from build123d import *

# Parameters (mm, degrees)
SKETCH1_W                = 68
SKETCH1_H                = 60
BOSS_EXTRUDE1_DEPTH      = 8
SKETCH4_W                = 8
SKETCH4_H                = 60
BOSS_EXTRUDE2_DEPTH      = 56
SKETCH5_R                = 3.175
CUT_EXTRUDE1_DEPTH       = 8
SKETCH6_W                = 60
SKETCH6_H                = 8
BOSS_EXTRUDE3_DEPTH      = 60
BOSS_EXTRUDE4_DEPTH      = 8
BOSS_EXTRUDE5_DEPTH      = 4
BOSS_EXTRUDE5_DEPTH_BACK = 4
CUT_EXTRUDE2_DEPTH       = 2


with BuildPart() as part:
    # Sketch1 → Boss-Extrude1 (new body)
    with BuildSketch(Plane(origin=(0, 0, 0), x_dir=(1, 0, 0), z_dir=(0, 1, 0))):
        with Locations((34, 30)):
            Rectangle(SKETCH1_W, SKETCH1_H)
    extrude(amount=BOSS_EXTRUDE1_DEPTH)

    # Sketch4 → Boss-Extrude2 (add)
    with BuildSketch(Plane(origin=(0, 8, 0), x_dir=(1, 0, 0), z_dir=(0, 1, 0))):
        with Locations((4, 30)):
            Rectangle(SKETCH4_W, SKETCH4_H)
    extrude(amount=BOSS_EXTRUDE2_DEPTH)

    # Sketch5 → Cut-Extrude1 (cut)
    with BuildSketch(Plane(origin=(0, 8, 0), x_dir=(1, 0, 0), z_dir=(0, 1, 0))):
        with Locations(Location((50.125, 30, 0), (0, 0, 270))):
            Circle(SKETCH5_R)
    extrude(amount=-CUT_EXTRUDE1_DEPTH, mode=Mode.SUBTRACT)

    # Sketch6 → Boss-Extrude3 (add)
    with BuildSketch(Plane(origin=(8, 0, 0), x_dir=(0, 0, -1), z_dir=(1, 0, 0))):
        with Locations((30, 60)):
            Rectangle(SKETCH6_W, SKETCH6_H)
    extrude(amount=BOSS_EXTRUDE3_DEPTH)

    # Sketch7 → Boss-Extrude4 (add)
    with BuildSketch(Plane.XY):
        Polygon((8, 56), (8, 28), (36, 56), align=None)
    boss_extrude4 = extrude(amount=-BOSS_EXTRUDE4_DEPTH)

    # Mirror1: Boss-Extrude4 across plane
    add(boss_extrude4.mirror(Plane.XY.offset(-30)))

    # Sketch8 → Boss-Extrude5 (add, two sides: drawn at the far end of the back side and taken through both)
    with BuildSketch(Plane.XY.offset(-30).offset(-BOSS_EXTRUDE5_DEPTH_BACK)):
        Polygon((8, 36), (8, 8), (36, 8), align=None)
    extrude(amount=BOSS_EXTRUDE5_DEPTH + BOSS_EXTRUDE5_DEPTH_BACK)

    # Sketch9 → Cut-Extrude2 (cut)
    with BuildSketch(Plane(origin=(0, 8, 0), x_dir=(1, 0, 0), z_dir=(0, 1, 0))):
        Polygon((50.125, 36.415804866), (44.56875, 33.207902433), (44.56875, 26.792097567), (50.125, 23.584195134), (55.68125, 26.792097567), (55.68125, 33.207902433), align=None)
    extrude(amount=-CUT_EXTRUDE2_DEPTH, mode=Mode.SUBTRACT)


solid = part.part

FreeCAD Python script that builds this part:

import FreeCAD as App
import Part
import Sketcher
from FreeCAD import Vector
Q = App.Units.Quantity

doc = App.newDocument("Part")
params = doc.addObject("Spreadsheet::Sheet", "Params")
for row, (alias, value) in enumerate([
    ("sketch1_width", "68 mm"),
    ("sketch1_height", "60 mm"),
    ("pad1_length", "8 mm"),
    ("sketch2_width", "8 mm"),
    ("sketch2_height", "60 mm"),
    ("pad2_length", "56 mm"),
    ("sketch3_diameter", "6.35 mm"),
    ("pocket1_length", "8 mm"),
    ("sketch4_width", "8 mm"),
    ("sketch4_height", "60 mm"),
    ("pad3_length", "60 mm"),
    ("sketch5_width", "28 mm"),
    ("pad4_length", "8 mm"),
    ("sketch6_width", "28 mm"),
    ("pad5_length", "4 mm"),
    ("pad5_length2", "4 mm"),
    ("pocket2_length", "2 mm"),
], start=1):
    params.set(f"A{row}", alias)
    params.set(f"B{row}", "=" + value)
    params.setAlias(f"B{row}", alias)

body = doc.addObject("PartDesign::Body", "Body")

# Sketch on XZ plane
sketch1 = body.newObject("Sketcher::SketchObject", "Sketch")
sketch1.AttachmentSupport = (doc.getObject("XZ_Plane"), [""])
sketch1.MapMode = "FlatFace"
sketch1.addGeometry([
    Part.LineSegment(Vector(0, -60, 0), Vector(0, 0, 0)),
    Part.LineSegment(Vector(0, 0, 0), Vector(68, 0, 0)),
    Part.LineSegment(Vector(68, 0, 0), Vector(68, -60, 0)),
    Part.LineSegment(Vector(68, -60, 0), Vector(0, -60, 0)),
], False)
sketch1.addConstraint([
    Sketcher.Constraint("Coincident", 0, 2, 1, 1),
    Sketcher.Constraint("Coincident", 1, 2, 2, 1),
    Sketcher.Constraint("Coincident", 2, 2, 3, 1),
    Sketcher.Constraint("Coincident", 3, 2, 0, 1),
    Sketcher.Constraint("Vertical", 0),
    Sketcher.Constraint("Horizontal", 1),
    Sketcher.Constraint("Vertical", 2),
    Sketcher.Constraint("Horizontal", 3),
    Sketcher.Constraint("Coincident", 0, 2, -1, 1),
    Sketcher.Constraint("DistanceX", 1, 1, 1, 2, 68.0),
    Sketcher.Constraint("DistanceY", 0, 1, 0, 2, 60.0),
])
sketch1.setExpression("Constraints[9]", "Params.sketch1_width")
sketch1.setExpression("Constraints[10]", "Params.sketch1_height")
pad1 = body.newObject("PartDesign::Pad", "Pad")
pad1.Profile = sketch1
pad1.setExpression("Length", "Params.pad1_length")
pad1.Reversed = True

# Sketch on XZ plane
sketch2 = body.newObject("Sketcher::SketchObject", "Sketch001")
sketch2.AttachmentSupport = (doc.getObject("XZ_Plane"), [""])
sketch2.MapMode = "FlatFace"
sketch2.AttachmentOffset = App.Placement(Vector(0, 0, -8), App.Rotation())
sketch2.addGeometry([
    Part.LineSegment(Vector(0, -60, 0), Vector(0, 0, 0)),
    Part.LineSegment(Vector(0, 0, 0), Vector(8, 0, 0)),
    Part.LineSegment(Vector(8, 0, 0), Vector(8, -60, 0)),
    Part.LineSegment(Vector(8, -60, 0), Vector(0, -60, 0)),
], False)
sketch2.addConstraint([
    Sketcher.Constraint("Coincident", 0, 2, 1, 1),
    Sketcher.Constraint("Coincident", 1, 2, 2, 1),
    Sketcher.Constraint("Coincident", 2, 2, 3, 1),
    Sketcher.Constraint("Coincident", 3, 2, 0, 1),
    Sketcher.Constraint("Vertical", 0),
    Sketcher.Constraint("Horizontal", 1),
    Sketcher.Constraint("Vertical", 2),
    Sketcher.Constraint("Horizontal", 3),
    Sketcher.Constraint("Coincident", 0, 2, -1, 1),
    Sketcher.Constraint("DistanceX", 1, 1, 1, 2, 8.0),
    Sketcher.Constraint("DistanceY", 0, 1, 0, 2, 60.0),
])
sketch2.setExpression("Constraints[9]", "Params.sketch2_width")
sketch2.setExpression("Constraints[10]", "Params.sketch2_height")
pad2 = body.newObject("PartDesign::Pad", "Pad001")
pad2.Profile = sketch2
pad2.setExpression("Length", "Params.pad2_length")
pad2.Reversed = True

# Sketch on XZ plane
sketch3 = body.newObject("Sketcher::SketchObject", "Sketch002")
sketch3.AttachmentSupport = (doc.getObject("XZ_Plane"), [""])
sketch3.MapMode = "FlatFace"
sketch3.AttachmentOffset = App.Placement(Vector(0, 0, -8), App.Rotation())
sketch3.addGeometry(Part.Circle(Vector(50.1, -30, 0), Vector(0, 0, 1), 3.2), False)
sketch3.addConstraint([
    Sketcher.Constraint("Diameter", 0, 6.35),
    Sketcher.Constraint("DistanceY", 0, 3, -1, 1, 30.0),
    Sketcher.Constraint("DistanceX", -1, 1, 0, 3, 50.125),
])
sketch3.setExpression("Constraints[0]", "Params.sketch3_diameter")
pocket1 = body.newObject("PartDesign::Pocket", "Pocket")
pocket1.Profile = sketch3
pocket1.setExpression("Length", "Params.pocket1_length")
pocket1.Reversed = True

# Sketch on YZ plane
sketch4 = body.newObject("Sketcher::SketchObject", "Sketch003")
sketch4.AttachmentSupport = (doc.getObject("YZ_Plane"), [""])
sketch4.MapMode = "FlatFace"
sketch4.AttachmentOffset = App.Placement(Vector(0, 0, 8), App.Rotation())
sketch4.addGeometry([
    Part.LineSegment(Vector(64, 0, 0), Vector(56, 0, 0)),
    Part.LineSegment(Vector(56, 0, 0), Vector(56, -60, 0)),
    Part.LineSegment(Vector(56, -60, 0), Vector(64, -60, 0)),
    Part.LineSegment(Vector(64, -60, 0), Vector(64, 0, 0)),
], False)
sketch4.addConstraint([
    Sketcher.Constraint("Coincident", 0, 2, 1, 1),
    Sketcher.Constraint("Coincident", 1, 2, 2, 1),
    Sketcher.Constraint("Coincident", 2, 2, 3, 1),
    Sketcher.Constraint("Coincident", 3, 2, 0, 1),
    Sketcher.Constraint("Horizontal", 0),
    Sketcher.Constraint("Vertical", 1),
    Sketcher.Constraint("Horizontal", 2),
    Sketcher.Constraint("Vertical", 3),
    Sketcher.Constraint("PointOnObject", 0, 2, -1),
    Sketcher.Constraint("DistanceX", 0, 2, 0, 1, 8.0),
    Sketcher.Constraint("DistanceY", 1, 2, 1, 1, 60.0),
    Sketcher.Constraint("DistanceX", -1, 1, 0, 2, 56.0),
])
sketch4.setExpression("Constraints[9]", "Params.sketch4_width")
sketch4.setExpression("Constraints[10]", "Params.sketch4_height")
pad3 = body.newObject("PartDesign::Pad", "Pad002")
pad3.Profile = sketch4
pad3.setExpression("Length", "Params.pad3_length")

# Sketch on XY plane
sketch5 = body.newObject("Sketcher::SketchObject", "Sketch004")
sketch5.AttachmentSupport = (doc.getObject("XY_Plane"), [""])
sketch5.MapMode = "FlatFace"
sketch5.addGeometry([
    Part.LineSegment(Vector(8, 56, 0), Vector(8, 28, 0)),
    Part.LineSegment(Vector(8, 28, 0), Vector(36, 56, 0)),
    Part.LineSegment(Vector(36, 56, 0), Vector(8, 56, 0)),
], False)
sketch5.addConstraint([
    Sketcher.Constraint("Coincident", 0, 2, 1, 1),
    Sketcher.Constraint("Coincident", 1, 2, 2, 1),
    Sketcher.Constraint("Coincident", 2, 2, 0, 1),
    Sketcher.Constraint("Vertical", 0),
    Sketcher.Constraint("Horizontal", 2),
    Sketcher.Constraint("Equal", 2, 0),
    Sketcher.Constraint("DistanceX", 2, 2, 2, 1, 28.0),
    Sketcher.Constraint("DistanceX", -1, 1, 0, 2, 8.0),
    Sketcher.Constraint("DistanceY", -1, 1, 0, 2, 28.0),
])
sketch5.setExpression("Constraints[6]", "Params.sketch5_width")
pad4 = body.newObject("PartDesign::Pad", "Pad003")
pad4.Profile = sketch5
pad4.setExpression("Length", "Params.pad4_length")
pad4.Reversed = True
doc.recompute()

datumplane = body.newObject("PartDesign::Plane", "DatumPlane")
datumplane.AttachmentSupport = (doc.getObject("XY_Plane"), [""])
datumplane.MapMode = "FlatFace"
datumplane.AttachmentOffset = App.Placement(Vector(0, 0, -30), App.Rotation())
mirrored = body.newObject("PartDesign::Mirrored", "Mirrored")
mirrored.Originals = [pad4]
mirrored.MirrorPlane = (datumplane, [""])
body.Tip = mirrored

# Sketch on XY plane
sketch6 = body.newObject("Sketcher::SketchObject", "Sketch005")
sketch6.AttachmentSupport = (doc.getObject("XY_Plane"), [""])
sketch6.MapMode = "FlatFace"
sketch6.AttachmentOffset = App.Placement(Vector(0, 0, -30), App.Rotation())
sketch6.addGeometry([
    Part.LineSegment(Vector(8, 36, 0), Vector(8, 8, 0)),
    Part.LineSegment(Vector(8, 8, 0), Vector(36, 8, 0)),
    Part.LineSegment(Vector(36, 8, 0), Vector(8, 36, 0)),
], False)
sketch6.addConstraint([
    Sketcher.Constraint("Coincident", 0, 2, 1, 1),
    Sketcher.Constraint("Coincident", 1, 2, 2, 1),
    Sketcher.Constraint("Coincident", 2, 2, 0, 1),
    Sketcher.Constraint("Vertical", 0),
    Sketcher.Constraint("Horizontal", 1),
    Sketcher.Constraint("Equal", 1, 0),
    Sketcher.Constraint("DistanceX", 1, 1, 1, 2, 28.0),
    Sketcher.Constraint("DistanceX", -1, 1, 0, 2, 8.0),
    Sketcher.Constraint("DistanceY", -1, 1, 0, 2, 8.0),
])
sketch6.setExpression("Constraints[6]", "Params.sketch6_width")
pad5 = body.newObject("PartDesign::Pad", "Pad004")
pad5.Profile = sketch6
pad5.Type = "TwoLengths"
pad5.setExpression("Length", "Params.pad5_length")
pad5.setExpression("Length2", "Params.pad5_length2")

# Sketch on XZ plane
sketch7 = body.newObject("Sketcher::SketchObject", "Sketch006")
sketch7.AttachmentSupport = (doc.getObject("XZ_Plane"), [""])
sketch7.MapMode = "FlatFace"
sketch7.AttachmentOffset = App.Placement(Vector(0, 0, -8), App.Rotation())
sketch7.addGeometry([
    Part.LineSegment(Vector(50, -36, 0), Vector(45, -33, 0)),  # 0
    Part.LineSegment(Vector(45, -33, 0), Vector(45, -27, 0)),  # 1
    Part.LineSegment(Vector(45, -27, 0), Vector(50, -24, 0)),  # 2
    Part.LineSegment(Vector(50, -24, 0), Vector(56, -27, 0)),  # 3
    Part.LineSegment(Vector(56, -27, 0), Vector(56, -33, 0)),  # 4
    Part.LineSegment(Vector(56, -33, 0), Vector(50, -36, 0)),  # 5
], False)
sketch7.addConstraint([
    Sketcher.Constraint("Coincident", 0, 2, 1, 1),
    Sketcher.Constraint("Coincident", 1, 2, 2, 1),
    Sketcher.Constraint("Coincident", 2, 2, 3, 1),
    Sketcher.Constraint("Coincident", 3, 2, 4, 1),
    Sketcher.Constraint("Coincident", 4, 2, 5, 1),
    Sketcher.Constraint("Coincident", 5, 2, 0, 1),
    Sketcher.Constraint("Vertical", 1),
    Sketcher.Constraint("Vertical", 4),
    Sketcher.Constraint("Parallel", 0, 3),
    Sketcher.Constraint("Parallel", 2, 5),
    Sketcher.Constraint("Horizontal", 1, 2, 3, 2),
    Sketcher.Constraint("Horizontal", 0, 2, 4, 2),
    Sketcher.Constraint("Vertical", 2, 2, 5, 2),
    Sketcher.Constraint("Angle", 0, Q("150 deg")),
    Sketcher.Constraint("DistanceX", -1, 1, 2, 2, 50.125),
    Sketcher.Constraint("DistanceX", 1, 2, 3, 2, 11.1125),
    Sketcher.Constraint("DistanceY", 1, 1, 1, 2, 6.415805),
    Sketcher.Constraint("DistanceY", 0, 2, -1, 1, 33.207902),
])
pocket2 = body.newObject("PartDesign::Pocket", "Pocket001")
pocket2.Profile = sketch7
pocket2.setExpression("Length", "Params.pocket2_length")
pocket2.Reversed = True

doc.recompute()
